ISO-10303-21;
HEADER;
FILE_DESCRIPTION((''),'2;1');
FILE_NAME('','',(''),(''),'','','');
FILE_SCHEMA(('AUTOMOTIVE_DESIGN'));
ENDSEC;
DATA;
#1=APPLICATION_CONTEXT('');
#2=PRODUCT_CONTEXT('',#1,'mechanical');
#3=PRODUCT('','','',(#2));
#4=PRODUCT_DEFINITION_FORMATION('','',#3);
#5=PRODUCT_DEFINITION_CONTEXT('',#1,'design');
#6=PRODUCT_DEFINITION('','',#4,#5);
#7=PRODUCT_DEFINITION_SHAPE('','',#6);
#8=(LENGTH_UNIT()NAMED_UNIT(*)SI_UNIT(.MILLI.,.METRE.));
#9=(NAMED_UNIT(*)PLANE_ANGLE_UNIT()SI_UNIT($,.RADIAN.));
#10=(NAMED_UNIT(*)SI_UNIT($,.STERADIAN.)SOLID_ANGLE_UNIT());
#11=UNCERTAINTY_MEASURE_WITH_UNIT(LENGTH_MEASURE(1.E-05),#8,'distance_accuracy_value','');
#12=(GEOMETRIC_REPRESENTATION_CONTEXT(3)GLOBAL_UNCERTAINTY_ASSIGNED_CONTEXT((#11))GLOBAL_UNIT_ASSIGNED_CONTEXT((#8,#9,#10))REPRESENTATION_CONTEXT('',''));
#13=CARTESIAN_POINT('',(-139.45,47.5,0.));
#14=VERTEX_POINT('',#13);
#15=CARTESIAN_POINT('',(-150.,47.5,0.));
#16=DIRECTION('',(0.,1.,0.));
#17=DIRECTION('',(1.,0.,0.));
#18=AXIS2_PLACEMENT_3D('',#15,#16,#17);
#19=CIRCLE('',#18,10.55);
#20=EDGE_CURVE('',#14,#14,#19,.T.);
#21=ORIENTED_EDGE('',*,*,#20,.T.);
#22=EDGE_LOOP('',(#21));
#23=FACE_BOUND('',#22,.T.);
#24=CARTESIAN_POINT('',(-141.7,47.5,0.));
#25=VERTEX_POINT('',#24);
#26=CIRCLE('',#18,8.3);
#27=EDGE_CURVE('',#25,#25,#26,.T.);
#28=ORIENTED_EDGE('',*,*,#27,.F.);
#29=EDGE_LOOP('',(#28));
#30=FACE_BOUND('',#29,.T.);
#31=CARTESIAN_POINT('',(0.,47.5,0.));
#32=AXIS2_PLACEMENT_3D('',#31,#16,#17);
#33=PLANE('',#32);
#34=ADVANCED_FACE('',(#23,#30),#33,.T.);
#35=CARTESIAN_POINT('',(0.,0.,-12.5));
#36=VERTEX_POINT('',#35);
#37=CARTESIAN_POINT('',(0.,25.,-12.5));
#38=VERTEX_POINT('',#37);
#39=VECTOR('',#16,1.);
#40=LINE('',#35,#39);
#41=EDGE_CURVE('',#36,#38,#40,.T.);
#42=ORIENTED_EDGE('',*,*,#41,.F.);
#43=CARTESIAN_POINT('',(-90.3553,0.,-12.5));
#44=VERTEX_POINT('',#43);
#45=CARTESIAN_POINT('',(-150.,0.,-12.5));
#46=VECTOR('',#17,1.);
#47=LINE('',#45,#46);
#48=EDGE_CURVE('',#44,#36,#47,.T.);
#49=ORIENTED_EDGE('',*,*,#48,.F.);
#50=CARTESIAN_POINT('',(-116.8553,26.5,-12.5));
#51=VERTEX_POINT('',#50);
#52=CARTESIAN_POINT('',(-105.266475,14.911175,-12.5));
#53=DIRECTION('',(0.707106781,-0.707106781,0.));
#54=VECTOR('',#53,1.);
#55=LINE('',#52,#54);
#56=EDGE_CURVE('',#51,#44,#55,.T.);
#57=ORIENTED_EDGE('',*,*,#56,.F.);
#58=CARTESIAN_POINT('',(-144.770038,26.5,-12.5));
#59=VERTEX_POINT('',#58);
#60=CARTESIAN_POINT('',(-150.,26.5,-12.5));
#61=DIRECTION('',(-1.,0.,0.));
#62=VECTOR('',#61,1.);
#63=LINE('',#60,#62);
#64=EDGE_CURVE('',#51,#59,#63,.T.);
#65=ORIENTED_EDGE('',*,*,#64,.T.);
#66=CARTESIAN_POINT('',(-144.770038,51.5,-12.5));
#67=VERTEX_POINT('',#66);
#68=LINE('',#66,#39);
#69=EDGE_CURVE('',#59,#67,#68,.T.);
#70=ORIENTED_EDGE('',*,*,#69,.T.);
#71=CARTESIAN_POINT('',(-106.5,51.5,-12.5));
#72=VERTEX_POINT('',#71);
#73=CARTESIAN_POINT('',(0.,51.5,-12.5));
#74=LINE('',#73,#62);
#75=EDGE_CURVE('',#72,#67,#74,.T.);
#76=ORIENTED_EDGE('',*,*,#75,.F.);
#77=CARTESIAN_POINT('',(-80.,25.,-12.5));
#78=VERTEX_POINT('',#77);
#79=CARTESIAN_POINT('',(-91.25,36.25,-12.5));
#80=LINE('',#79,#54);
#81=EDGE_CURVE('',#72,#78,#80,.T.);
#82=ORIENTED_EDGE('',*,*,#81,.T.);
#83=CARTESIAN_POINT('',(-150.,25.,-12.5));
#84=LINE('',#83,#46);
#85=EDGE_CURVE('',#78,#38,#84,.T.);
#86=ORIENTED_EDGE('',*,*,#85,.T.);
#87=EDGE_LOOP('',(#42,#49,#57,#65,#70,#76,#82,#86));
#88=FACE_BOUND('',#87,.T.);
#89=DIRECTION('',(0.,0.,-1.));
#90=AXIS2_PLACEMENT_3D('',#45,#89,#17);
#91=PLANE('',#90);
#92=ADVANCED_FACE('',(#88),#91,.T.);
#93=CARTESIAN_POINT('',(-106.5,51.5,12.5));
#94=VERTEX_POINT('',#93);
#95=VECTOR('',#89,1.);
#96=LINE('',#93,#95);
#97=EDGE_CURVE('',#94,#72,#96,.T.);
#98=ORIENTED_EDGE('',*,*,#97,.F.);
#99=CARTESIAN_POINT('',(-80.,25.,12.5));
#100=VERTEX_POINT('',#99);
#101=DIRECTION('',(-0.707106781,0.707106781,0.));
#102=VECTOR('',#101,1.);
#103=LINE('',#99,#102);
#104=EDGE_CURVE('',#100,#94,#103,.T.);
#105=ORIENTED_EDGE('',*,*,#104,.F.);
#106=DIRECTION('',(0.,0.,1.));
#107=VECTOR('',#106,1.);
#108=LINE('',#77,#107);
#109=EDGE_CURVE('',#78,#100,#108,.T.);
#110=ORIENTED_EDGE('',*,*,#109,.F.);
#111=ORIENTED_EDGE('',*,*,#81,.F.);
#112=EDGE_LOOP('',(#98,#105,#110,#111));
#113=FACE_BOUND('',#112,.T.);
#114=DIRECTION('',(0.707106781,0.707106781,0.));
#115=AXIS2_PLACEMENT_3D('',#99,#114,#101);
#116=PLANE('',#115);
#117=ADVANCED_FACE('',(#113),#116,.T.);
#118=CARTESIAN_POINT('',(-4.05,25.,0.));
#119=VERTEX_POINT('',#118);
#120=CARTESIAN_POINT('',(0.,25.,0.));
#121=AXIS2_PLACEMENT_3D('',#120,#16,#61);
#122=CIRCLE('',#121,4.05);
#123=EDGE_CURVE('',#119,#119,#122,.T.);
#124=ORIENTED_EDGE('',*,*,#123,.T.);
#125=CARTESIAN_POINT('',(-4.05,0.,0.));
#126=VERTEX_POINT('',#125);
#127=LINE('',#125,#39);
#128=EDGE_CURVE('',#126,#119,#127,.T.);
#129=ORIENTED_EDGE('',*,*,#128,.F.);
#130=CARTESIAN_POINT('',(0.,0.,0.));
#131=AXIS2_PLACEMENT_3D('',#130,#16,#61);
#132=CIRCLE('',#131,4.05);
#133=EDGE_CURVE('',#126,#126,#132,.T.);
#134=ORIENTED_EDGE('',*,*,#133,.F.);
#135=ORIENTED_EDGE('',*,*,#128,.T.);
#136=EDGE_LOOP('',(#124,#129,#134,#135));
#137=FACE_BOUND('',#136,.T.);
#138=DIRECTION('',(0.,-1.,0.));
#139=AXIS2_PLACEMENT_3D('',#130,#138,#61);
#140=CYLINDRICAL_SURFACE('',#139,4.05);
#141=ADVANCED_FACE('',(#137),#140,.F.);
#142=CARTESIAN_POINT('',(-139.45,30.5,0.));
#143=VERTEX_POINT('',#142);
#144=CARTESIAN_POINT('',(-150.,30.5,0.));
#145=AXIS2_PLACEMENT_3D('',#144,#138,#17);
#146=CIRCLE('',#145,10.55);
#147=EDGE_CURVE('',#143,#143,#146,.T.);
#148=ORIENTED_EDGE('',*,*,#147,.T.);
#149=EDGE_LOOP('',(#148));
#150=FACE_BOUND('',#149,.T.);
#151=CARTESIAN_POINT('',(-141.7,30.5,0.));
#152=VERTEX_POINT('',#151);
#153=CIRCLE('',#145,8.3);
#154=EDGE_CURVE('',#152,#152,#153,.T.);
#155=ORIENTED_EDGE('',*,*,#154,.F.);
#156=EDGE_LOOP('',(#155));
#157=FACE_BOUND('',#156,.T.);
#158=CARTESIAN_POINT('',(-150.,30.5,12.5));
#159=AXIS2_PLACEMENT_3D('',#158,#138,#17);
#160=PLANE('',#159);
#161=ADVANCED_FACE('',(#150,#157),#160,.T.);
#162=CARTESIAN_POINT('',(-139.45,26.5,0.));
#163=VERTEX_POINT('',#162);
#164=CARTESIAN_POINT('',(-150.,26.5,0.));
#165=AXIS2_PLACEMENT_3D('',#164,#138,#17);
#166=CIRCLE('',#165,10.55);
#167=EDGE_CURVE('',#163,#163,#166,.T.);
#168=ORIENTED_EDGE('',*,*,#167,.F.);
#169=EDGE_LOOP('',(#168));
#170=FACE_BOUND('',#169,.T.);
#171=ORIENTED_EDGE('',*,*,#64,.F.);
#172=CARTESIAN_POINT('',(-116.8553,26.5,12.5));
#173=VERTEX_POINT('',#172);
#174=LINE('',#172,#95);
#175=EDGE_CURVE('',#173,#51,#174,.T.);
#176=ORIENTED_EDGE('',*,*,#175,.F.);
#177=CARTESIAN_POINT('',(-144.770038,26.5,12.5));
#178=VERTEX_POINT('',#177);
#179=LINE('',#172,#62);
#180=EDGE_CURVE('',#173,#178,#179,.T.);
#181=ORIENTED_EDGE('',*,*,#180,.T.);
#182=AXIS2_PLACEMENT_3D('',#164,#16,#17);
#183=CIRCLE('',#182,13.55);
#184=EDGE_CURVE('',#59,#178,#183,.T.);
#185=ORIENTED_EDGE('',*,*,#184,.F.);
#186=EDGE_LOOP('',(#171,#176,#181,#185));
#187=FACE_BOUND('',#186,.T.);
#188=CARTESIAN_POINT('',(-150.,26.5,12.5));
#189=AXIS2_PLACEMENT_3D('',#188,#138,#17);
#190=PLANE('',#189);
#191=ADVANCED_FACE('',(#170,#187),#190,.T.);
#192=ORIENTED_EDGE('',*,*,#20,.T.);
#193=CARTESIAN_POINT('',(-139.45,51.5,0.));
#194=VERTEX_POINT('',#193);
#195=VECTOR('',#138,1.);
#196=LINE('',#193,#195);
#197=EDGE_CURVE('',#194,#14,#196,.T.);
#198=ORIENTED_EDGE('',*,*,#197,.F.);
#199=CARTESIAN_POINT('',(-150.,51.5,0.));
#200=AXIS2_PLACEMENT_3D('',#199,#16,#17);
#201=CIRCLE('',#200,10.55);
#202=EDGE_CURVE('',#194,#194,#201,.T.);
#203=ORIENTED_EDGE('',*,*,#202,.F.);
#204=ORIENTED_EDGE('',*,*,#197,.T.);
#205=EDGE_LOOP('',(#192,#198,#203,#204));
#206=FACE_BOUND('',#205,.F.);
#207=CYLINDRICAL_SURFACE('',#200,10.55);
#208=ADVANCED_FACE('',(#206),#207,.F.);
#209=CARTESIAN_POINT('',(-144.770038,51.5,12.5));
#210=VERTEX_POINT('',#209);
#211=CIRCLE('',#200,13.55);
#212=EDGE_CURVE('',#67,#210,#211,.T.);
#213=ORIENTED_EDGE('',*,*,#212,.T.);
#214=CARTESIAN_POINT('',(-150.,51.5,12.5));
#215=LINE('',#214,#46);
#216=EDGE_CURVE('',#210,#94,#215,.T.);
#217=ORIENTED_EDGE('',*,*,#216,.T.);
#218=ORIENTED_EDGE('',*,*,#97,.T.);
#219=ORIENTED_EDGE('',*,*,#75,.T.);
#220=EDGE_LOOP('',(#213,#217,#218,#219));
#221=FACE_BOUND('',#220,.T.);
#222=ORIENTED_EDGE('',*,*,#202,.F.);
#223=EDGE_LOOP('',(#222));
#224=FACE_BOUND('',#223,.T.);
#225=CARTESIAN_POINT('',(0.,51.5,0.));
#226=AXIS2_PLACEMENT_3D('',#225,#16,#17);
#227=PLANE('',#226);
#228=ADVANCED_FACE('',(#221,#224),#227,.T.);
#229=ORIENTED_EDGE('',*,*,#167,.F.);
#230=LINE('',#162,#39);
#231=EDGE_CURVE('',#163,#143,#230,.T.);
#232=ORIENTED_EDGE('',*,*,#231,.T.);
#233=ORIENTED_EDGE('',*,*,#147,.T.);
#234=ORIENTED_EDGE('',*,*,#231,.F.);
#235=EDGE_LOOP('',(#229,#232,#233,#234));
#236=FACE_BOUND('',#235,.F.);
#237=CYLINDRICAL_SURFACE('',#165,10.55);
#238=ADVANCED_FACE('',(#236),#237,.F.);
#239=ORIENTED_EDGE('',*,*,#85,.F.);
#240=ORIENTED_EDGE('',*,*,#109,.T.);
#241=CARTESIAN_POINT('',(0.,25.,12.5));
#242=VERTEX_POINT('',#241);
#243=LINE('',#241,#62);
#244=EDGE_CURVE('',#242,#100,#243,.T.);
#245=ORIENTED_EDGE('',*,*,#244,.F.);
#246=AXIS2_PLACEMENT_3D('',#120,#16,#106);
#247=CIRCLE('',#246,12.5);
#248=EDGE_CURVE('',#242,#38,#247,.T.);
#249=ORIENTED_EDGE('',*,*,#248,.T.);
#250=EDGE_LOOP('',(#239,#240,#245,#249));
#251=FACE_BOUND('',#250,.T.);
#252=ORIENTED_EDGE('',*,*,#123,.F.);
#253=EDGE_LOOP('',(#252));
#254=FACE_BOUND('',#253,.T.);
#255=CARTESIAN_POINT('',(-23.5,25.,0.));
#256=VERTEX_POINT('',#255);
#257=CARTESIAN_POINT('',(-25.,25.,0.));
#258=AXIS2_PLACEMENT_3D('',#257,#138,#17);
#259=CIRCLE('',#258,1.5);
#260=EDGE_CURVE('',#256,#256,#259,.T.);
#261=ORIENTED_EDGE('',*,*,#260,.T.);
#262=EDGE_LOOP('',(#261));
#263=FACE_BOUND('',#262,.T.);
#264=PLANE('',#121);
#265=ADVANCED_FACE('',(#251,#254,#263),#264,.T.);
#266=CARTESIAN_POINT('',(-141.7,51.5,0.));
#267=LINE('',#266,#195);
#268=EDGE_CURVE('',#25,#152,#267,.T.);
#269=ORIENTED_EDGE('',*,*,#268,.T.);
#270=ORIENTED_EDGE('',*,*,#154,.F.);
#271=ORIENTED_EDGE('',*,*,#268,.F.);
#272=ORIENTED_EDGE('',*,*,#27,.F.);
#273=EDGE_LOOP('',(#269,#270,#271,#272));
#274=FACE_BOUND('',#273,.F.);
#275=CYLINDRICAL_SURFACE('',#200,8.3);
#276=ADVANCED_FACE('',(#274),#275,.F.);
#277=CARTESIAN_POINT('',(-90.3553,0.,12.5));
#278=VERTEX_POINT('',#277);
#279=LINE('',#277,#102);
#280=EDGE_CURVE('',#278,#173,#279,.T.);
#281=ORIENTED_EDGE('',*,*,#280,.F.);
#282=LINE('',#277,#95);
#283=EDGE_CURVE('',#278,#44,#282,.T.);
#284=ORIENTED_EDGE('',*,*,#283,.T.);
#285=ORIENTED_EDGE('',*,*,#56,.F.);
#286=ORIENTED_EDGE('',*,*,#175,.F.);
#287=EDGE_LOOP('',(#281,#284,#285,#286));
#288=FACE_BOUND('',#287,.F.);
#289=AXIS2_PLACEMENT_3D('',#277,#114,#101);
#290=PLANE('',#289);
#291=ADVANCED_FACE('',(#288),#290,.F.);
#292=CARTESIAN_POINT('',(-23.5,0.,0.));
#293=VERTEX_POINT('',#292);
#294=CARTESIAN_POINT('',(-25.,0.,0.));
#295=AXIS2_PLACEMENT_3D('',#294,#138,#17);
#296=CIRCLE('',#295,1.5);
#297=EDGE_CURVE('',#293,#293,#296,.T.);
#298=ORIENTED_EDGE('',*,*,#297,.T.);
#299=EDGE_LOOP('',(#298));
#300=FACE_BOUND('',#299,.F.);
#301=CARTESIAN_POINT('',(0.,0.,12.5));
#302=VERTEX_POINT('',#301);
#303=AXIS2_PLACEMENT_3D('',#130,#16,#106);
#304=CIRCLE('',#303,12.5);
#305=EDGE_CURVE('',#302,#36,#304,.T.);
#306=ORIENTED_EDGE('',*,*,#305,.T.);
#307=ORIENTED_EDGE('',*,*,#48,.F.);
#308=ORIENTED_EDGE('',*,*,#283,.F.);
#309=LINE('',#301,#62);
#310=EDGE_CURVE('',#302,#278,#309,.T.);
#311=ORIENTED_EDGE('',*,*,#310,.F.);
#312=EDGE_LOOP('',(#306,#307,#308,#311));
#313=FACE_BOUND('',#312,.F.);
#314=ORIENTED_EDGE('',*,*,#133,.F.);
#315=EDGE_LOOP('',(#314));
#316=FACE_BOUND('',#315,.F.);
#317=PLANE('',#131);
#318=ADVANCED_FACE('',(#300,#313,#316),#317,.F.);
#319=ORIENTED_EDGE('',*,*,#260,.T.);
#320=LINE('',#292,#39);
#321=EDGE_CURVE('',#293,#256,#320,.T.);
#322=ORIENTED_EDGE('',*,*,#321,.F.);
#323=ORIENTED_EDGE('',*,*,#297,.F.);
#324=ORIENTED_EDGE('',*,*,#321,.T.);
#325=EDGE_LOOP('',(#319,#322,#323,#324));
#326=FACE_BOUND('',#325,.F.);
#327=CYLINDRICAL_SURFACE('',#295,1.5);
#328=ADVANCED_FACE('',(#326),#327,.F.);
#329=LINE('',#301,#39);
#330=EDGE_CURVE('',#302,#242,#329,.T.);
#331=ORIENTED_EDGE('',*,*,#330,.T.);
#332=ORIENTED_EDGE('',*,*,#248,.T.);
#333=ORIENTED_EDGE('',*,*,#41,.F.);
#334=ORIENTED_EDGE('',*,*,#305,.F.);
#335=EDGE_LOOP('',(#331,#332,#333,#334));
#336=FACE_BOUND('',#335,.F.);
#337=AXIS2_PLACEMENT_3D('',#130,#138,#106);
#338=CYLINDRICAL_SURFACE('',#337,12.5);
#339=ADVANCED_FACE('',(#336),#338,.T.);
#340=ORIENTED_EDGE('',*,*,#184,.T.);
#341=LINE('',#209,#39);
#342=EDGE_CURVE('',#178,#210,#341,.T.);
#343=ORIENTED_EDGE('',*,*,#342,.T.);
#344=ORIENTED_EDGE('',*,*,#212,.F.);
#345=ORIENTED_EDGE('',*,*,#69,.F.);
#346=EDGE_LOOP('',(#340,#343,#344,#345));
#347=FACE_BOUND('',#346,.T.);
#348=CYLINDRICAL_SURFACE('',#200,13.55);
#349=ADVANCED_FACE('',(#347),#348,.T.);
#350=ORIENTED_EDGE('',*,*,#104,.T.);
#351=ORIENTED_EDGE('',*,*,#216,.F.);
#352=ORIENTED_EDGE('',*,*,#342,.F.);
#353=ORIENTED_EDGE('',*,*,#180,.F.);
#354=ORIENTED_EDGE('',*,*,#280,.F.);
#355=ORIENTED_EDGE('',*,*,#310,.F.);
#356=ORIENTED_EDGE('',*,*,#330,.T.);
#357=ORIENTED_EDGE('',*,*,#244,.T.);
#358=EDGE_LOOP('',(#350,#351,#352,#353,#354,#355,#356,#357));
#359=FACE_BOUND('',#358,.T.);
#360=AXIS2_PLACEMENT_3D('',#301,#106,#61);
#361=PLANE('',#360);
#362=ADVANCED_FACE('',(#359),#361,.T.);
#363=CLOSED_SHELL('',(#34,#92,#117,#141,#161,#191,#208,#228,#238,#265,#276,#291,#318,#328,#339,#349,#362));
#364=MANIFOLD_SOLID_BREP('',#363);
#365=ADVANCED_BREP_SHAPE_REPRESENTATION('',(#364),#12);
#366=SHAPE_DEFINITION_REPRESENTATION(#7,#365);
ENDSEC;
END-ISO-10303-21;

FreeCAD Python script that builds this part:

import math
import FreeCAD as App
import Part
import Sketcher
Q = App.Units.Quantity


def add_polygon(sketch, points):
    """Adds a closed chain of lines whose ends are joined by coincident constraints."""
    first, n = sketch.GeometryCount, len(points)
    for a, b in zip(points, points[1:] + points[:1]):
        sketch.addGeometry(Part.LineSegment(App.Vector(*a, 0), App.Vector(*b, 0)), False)
    for i in range(n):
        sketch.addConstraint(Sketcher.Constraint("Coincident", first + i, 2, first + (i + 1) % n, 1))

doc = App.newDocument("Part")
body = doc.addObject("PartDesign::Body", "Body")

sketch1 = body.newObject("Sketcher::SketchObject", "Sketch")
sketch1.AttachmentSupport = (doc.getObject("XZ_Plane"), [""])
sketch1.MapMode = "FlatFace"
sketch1.addGeometry(Part.LineSegment(App.Vector(-150, 12.5, 0), App.Vector(0, 12.5, 0)), False)
sketch1.addGeometry(Part.ArcOfCircle(Part.Circle(App.Vector(0, 0, 0), App.Vector(0, 0, 1), 12.5), math.radians(-90), math.radians(90)), False)
sketch1.addGeometry(Part.LineSegment(App.Vector(0, -12.5, 0), App.Vector(-150, -12.5, 0)), False)
sketch1.addGeometry(Part.ArcOfCircle(Part.Circle(App.Vector(-150, 0, 0), App.Vector(0, 0, 1), 12.5), math.radians(90), math.radians(270)), False)
sketch1.addGeometry(Part.Circle(App.Vector(0, 0, 0), App.Vector(0, 0, 1), 4.05), False)
sketch1.addConstraint(Sketcher.Constraint("Tangent", 0, 2, 1, 2))
sketch1.addConstraint(Sketcher.Constraint("Tangent", 1, 1, 2, 1))
sketch1.addConstraint(Sketcher.Constraint("Tangent", 2, 2, 3, 2))
sketch1.addConstraint(Sketcher.Constraint("Tangent", 3, 1, 0, 1))
sketch1.addConstraint(Sketcher.Constraint("Horizontal", 0))
sketch1.addConstraint(Sketcher.Constraint("Horizontal", 2))
sketch1.addConstraint(Sketcher.Constraint("Coincident", 1, 3, -1, 1))
sketch1.addConstraint(Sketcher.Constraint("Coincident", 4, 3, -1, 1))
sketch1.addConstraint(Sketcher.Constraint("Diameter", 4, Q("8.1 mm")))
sketch1.addConstraint(Sketcher.Constraint("Radius", 1, Q("12.5 mm")))
sketch1.addConstraint(Sketcher.Constraint("DistanceX", 0, 1, 0, 2, Q("150 mm")))
pad1 = body.newObject("PartDesign::Pad", "Pad")
pad1.Profile = sketch1
pad1.Length = 25
pad1.Reversed = True

sketch2 = body.newObject("Sketcher::SketchObject", "Sketch001")
sketch2.AttachmentSupport = (doc.getObject("XZ_Plane"), [""])
sketch2.MapMode = "FlatFace"
sketch2.AttachmentOffset = App.Placement(App.Vector(0, 0, -25), App.Rotation())
sketch2.addGeometry(Part.ArcOfCircle(Part.Circle(App.Vector(-150, 0, 0), App.Vector(0, 0, 1), 12.5), math.radians(90), math.radians(270)), False)
sketch2.addGeometry(Part.LineSegment(App.Vector(-150, 12.5, 0), App.Vector(-80, 12.5, 0)), False)
sketch2.addGeometry(Part.LineSegment(App.Vector(-80, 12.5, 0), App.Vector(-80, -12.5, 0)), False)
sketch2.addGeometry(Part.LineSegment(App.Vector(-80, -12.5, 0), App.Vector(-150, -12.5, 0)), False)
sketch2.addConstraint(Sketcher.Constraint("Tangent", 0, 1, 1, 1))
sketch2.addConstraint(Sketcher.Constraint("Coincident", 1, 2, 2, 1))
sketch2.addConstraint(Sketcher.Constraint("Coincident", 2, 2, 3, 1))
sketch2.addConstraint(Sketcher.Constraint("Tangent", 3, 2, 0, 2))
sketch2.addConstraint(Sketcher.Constraint("Horizontal", 1))
sketch2.addConstraint(Sketcher.Constraint("Vertical", 2))
sketch2.addConstraint(Sketcher.Constraint("Horizontal", 3))
sketch2.addConstraint(Sketcher.Constraint("PointOnObject", 0, 3, -1))
sketch2.addConstraint(Sketcher.Constraint("DistanceX", 1, 2, -1, 1, Q("80 mm")))
sketch2.addConstraint(Sketcher.Constraint("Radius", 0, Q("12.5 mm")))
sketch2.addConstraint(Sketcher.Constraint("DistanceX", 1, 1, 1, 2, Q("70 mm")))
pad2 = body.newObject("PartDesign::Pad", "Pad001")
pad2.Profile = sketch2
pad2.Length = 26.5
pad2.Reversed = True

sketch3 = body.newObject("Sketcher::SketchObject", "Sketch002")
sketch3.AttachmentSupport = (doc.getObject("XY_Plane"), [""])
sketch3.MapMode = "FlatFace"
sketch3.AttachmentOffset = App.Placement(App.Vector(0, 0, 12.5), App.Rotation())
add_polygon(sketch3, [(-90.3553, 0), (-116.8553, 26.5), (-162.5, 26.5), (-162.5, 0)])
sketch3.addConstraint(Sketcher.Constraint("Horizontal", 1))
sketch3.addConstraint(Sketcher.Constraint("Vertical", 2))
sketch3.addConstraint(Sketcher.Constraint("Horizontal", 3))
sketch3.addConstraint(Sketcher.Constraint("PointOnObject", 2, 2, -1))
sketch3.addConstraint(Sketcher.Constraint("Angle", 0, Q("135 deg")))
sketch3.addConstraint(Sketcher.Constraint("DistanceY", 2, 2, 2, 1, Q("26.5 mm")))
sketch3.addConstraint(Sketcher.Constraint("DistanceX", 1, 2, -1, 1, Q("162.5 mm")))
sketch3.addConstraint(Sketcher.Constraint("DistanceX", 1, 2, 1, 1, Q("45.6447 mm")))
pocket1 = body.newObject("PartDesign::Pocket", "Pocket")
pocket1.Profile = sketch3
pocket1.Type = "ThroughAll"

sketch4 = body.newObject("Sketcher::SketchObject", "Sketch003")
sketch4.AttachmentSupport = (doc.getObject("XY_Plane"), [""])
sketch4.MapMode = "FlatFace"
sketch4.AttachmentOffset = App.Placement(App.Vector(0, 0, 12.5), App.Rotation())
add_polygon(sketch4, [(-106.5, 51.5), (-80, 25), (-80, 51.5)])
sketch4.addConstraint(Sketcher.Constraint("Vertical", 1))
sketch4.addConstraint(Sketcher.Constraint("Horizontal", 2))
sketch4.addConstraint(Sketcher.Constraint("Equal", 2, 1))
sketch4.addConstraint(Sketcher.Constraint("DistanceX", 2, 2, 2, 1, Q("26.5 mm")))
sketch4.addConstraint(Sketcher.Constraint("DistanceX", 0, 2, -1, 1, Q("80 mm")))
sketch4.addConstraint(Sketcher.Constraint("DistanceY", -1, 1, 0, 2, Q("25 mm")))
pocket2 = body.newObject("PartDesign::Pocket", "Pocket001")
pocket2.Profile = sketch4
pocket2.Type = "ThroughAll"

sketch5 = body.newObject("Sketcher::SketchObject", "Sketch004")
sketch5.AttachmentSupport = (doc.getObject("XZ_Plane"), [""])
sketch5.MapMode = "FlatFace"
sketch5.AttachmentOffset = App.Placement(App.Vector(0, 0, -51.5), App.Rotation())
sketch5.addGeometry(Part.Circle(App.Vector(-150, 0, 0), App.Vector(0, 0, 1), 8.3), False)
sketch5.addConstraint(Sketcher.Constraint("PointOnObject", 0, 3, -1))
sketch5.addConstraint(Sketcher.Constraint("Diameter", 0, Q("16.6 mm")))
sketch5.addConstraint(Sketcher.Constraint("DistanceX", 0, 3, -1, 1, Q("150 mm")))
pocket3 = body.newObject("PartDesign::Pocket", "Pocket002")
pocket3.Profile = sketch5
pocket3.Type = "ThroughAll"
pocket3.Reversed = True

sketch6 = body.newObject("Sketcher::SketchObject", "Sketch005")
sketch6.AttachmentSupport = (doc.getObject("XZ_Plane"), [""])
sketch6.MapMode = "FlatFace"
sketch6.AttachmentOffset = App.Placement(App.Vector(0, 0, -51.5), App.Rotation())
sketch6.addGeometry(Part.Circle(App.Vector(-150, 0, 0), App.Vector(0, 0, 1), 10.55), False)
sketch6.addGeometry(Part.Circle(App.Vector(-150, 0, 0), App.Vector(0, 0, 1), 8.3), False)
sketch6.addConstraint(Sketcher.Constraint("Coincident", 1, 3, 0, 3))
sketch6.addConstraint(Sketcher.Constraint("PointOnObject", 0, 3, -1))
sketch6.addConstraint(Sketcher.Constraint("Diameter", 0, Q("21.1 mm")))
sketch6.addConstraint(Sketcher.Constraint("Diameter", 1, Q("16.6 mm")))
sketch6.addConstraint(Sketcher.Constraint("DistanceX", 0, 3, -1, 1, Q("150 mm")))
pocket4 = body.newObject("PartDesign::Pocket", "Pocket003")
pocket4.Profile = sketch6
pocket4.Length = 4
pocket4.Reversed = True

sketch7 = body.newObject("Sketcher::SketchObject", "Sketch006")
sketch7.AttachmentSupport = (doc.getObject("XZ_Plane"), [""])
sketch7.MapMode = "FlatFace"
sketch7.AttachmentOffset = App.Placement(App.Vector(0, 0, -26.5), App.Rotation())
sketch7.addGeometry(Part.Circle(App.Vector(-150, 0, 0), App.Vector(0, 0, 1), 10.55), False)
sketch7.addGeometry(Part.Circle(App.Vector(-150, 0, 0), App.Vector(0, 0, 1), 8.3), False)
sketch7.addConstraint(Sketcher.Constraint("Coincident", 1, 3, 0, 3))
sketch7.addConstraint(Sketcher.Constraint("PointOnObject", 0, 3, -1))
sketch7.addConstraint(Sketcher.Constraint("Diameter", 0, Q("21.1 mm")))
sketch7.addConstraint(Sketcher.Constraint("Diameter", 1, Q("16.6 mm")))
sketch7.addConstraint(Sketcher.Constraint("DistanceX", 0, 3, -1, 1, Q("150 mm")))
pocket5 = body.newObject("PartDesign::Pocket", "Pocket004")
pocket5.Profile = sketch7
pocket5.Length = 4

sketch8 = body.newObject("Sketcher::SketchObject", "Sketch007")
sketch8.AttachmentSupport = (doc.getObject("XZ_Plane"), [""])
sketch8.MapMode = "FlatFace"
sketch8.AttachmentOffset = App.Placement(App.Vector(0, 0, -51.5), App.Rotation())
sketch8.addGeometry(Part.Circle(App.Vector(-150, 0, 0), App.Vector(0, 0, 1), 13.55), False)
sketch8.addGeometry(Part.Circle(App.Vector(-150, 0, 0), App.Vector(0, 0, 1), 10.55), False)
sketch8.addConstraint(Sketcher.Constraint("Coincident", 1, 3, 0, 3))
sketch8.addConstraint(Sketcher.Constraint("PointOnObject", 0, 3, -1))
sketch8.addConstraint(Sketcher.Constraint("Diameter", 0, Q("27.1 mm")))
sketch8.addConstraint(Sketcher.Constraint("Diameter", 1, Q("21.1 mm")))
sketch8.addConstraint(Sketcher.Constraint("DistanceX", 0, 3, -1, 1, Q("150 mm")))
pad3 = body.newObject("PartDesign::Pad", "Pad002")
pad3.Profile = sketch8
pad3.Length = 25

sketch9 = body.newObject("Sketcher::SketchObject", "Sketch008")
sketch9.AttachmentSupport = (doc.getObject("XZ_Plane"), [""])
sketch9.MapMode = "FlatFace"
sketch9.addGeometry(Part.Circle(App.Vector(-25, 0, 0), App.Vector(0, 0, 1), 1.5), False)
sketch9.addConstraint(Sketcher.Constraint("PointOnObject", 0, 3, -1))
sketch9.addConstraint(Sketcher.Constraint("Diameter", 0, Q("3 mm")))
sketch9.addConstraint(Sketcher.Constraint("DistanceX", 0, 3, -1, 1, Q("25 mm")))
pocket6 = body.newObject("PartDesign::Pocket", "Pocket005")
pocket6.Profile = sketch9
pocket6.Type = "ThroughAll"

doc.recompute()
